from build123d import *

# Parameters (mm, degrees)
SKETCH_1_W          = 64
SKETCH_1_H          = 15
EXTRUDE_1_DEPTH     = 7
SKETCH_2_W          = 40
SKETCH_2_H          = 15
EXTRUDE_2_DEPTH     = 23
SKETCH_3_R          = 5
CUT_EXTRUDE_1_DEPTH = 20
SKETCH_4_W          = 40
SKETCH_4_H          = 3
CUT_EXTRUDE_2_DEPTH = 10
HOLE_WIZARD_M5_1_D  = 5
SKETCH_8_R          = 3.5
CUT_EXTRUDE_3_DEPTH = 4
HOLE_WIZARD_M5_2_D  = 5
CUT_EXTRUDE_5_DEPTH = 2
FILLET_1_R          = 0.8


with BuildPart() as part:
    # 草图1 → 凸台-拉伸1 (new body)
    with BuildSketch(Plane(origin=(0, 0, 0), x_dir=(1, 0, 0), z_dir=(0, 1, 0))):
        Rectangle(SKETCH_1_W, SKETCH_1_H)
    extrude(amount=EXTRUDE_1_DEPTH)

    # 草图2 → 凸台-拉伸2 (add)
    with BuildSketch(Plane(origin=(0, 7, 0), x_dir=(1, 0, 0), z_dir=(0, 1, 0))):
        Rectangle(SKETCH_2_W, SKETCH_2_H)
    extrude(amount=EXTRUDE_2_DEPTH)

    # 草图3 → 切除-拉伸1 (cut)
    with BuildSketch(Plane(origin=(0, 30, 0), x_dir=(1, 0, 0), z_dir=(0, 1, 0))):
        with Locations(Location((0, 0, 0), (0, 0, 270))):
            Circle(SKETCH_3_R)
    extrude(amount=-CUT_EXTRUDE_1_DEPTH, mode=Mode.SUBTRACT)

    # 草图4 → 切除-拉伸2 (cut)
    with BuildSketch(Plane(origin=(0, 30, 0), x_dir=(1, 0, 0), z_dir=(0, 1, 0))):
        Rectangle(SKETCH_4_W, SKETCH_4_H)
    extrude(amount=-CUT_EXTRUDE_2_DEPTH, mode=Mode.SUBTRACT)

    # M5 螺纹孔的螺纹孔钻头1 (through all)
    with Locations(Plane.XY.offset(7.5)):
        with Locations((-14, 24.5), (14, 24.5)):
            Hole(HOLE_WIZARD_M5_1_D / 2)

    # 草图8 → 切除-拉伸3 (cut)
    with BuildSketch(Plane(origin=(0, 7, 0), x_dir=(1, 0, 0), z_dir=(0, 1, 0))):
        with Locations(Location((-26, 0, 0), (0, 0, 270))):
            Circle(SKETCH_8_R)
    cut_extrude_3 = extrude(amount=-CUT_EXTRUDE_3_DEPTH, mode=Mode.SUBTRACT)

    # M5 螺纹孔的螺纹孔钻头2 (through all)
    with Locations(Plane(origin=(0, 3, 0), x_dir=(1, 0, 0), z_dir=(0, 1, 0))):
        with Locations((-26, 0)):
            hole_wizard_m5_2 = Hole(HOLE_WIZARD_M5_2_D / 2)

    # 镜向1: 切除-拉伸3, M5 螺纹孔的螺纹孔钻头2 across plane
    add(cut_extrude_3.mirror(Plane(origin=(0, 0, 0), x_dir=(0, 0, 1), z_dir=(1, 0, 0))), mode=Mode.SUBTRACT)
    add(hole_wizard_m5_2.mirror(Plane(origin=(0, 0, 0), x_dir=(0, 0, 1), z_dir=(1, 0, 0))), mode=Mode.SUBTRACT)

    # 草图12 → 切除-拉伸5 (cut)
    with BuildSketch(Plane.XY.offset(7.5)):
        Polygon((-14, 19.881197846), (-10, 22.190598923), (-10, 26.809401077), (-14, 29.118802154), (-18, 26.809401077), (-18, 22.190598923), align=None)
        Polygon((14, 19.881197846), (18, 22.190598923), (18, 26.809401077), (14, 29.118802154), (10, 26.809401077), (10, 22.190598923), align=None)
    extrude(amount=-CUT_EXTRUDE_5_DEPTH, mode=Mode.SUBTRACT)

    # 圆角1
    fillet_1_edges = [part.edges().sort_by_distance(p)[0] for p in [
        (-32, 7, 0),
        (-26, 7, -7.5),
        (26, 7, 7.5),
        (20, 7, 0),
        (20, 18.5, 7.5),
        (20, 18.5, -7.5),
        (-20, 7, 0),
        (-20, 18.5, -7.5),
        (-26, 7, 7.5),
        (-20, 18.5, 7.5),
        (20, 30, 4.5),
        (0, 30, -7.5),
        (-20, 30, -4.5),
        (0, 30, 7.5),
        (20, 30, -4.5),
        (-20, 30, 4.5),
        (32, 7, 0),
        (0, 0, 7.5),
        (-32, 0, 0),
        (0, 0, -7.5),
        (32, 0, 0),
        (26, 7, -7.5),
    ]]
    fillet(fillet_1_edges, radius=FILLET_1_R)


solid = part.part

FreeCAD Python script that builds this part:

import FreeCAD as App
import Part
import Sketcher
from FreeCAD import Vector
Q = App.Units.Quantity


def edges_at(feature, points):
    """Names of the edges that pass closest to the given points."""
    edges = feature.Shape.Edges
    near = lambda p: min(range(len(edges)), key=lambda i: edges[i].distToShape(Part.Vertex(*p))[0])
    return sorted({f"Edge{near(p) + 1}" for p in points})


def add_polygon(sketch, points):
    """Adds a closed chain of lines whose ends are joined by coincident constraints."""
    first, n = sketch.GeometryCount, len(points)
    for a, b in zip(points, points[1:] + points[:1]):
        sketch.addGeometry(Part.LineSegment(App.Vector(*a, 0), App.Vector(*b, 0)), False)
    for i in range(n):
        sketch.addConstraint(Sketcher.Constraint("Coincident", first + i, 2, first + (i + 1) % n, 1))

doc = App.newDocument("Part")
body = doc.addObject("PartDesign::Body", "Body")

# Sketch on XZ plane
sketch1 = body.newObject("Sketcher::SketchObject", "Sketch")
sketch1.AttachmentSupport = (doc.getObject("XZ_Plane"), [""])
sketch1.MapMode = "FlatFace"
add_polygon(sketch1, [(-32, -8), (-32, 8), (32, 8), (32, -8)])  # lines 0-3
sketch1.addConstraint([
    Sketcher.Constraint("Vertical", 0),
    Sketcher.Constraint("Horizontal", 1),
    Sketcher.Constraint("Vertical", 2),
    Sketcher.Constraint("Horizontal", 3),
    Sketcher.Constraint("Symmetric", 0, 2, 2, 2, -1, 1),
    Sketcher.Constraint("DistanceX", 1, 1, 1, 2, Q("64 mm")),
    Sketcher.Constraint("DistanceY", 0, 1, 0, 2, Q("15 mm")),
])
pad1 = body.newObject("PartDesign::Pad", "Pad")
pad1.Profile = sketch1
pad1.Length = 7
pad1.Reversed = True

# Sketch on XZ plane
sketch2 = body.newObject("Sketcher::SketchObject", "Sketch001")
sketch2.AttachmentSupport = (doc.getObject("XZ_Plane"), [""])
sketch2.MapMode = "FlatFace"
sketch2.AttachmentOffset = App.Placement(Vector(0, 0, -7), App.Rotation())
add_polygon(sketch2, [(-20, -8), (-20, 8), (20, 8), (20, -8)])  # lines 0-3
sketch2.addConstraint([
    Sketcher.Constraint("Vertical", 0),
    Sketcher.Constraint("Horizontal", 1),
    Sketcher.Constraint("Vertical", 2),
    Sketcher.Constraint("Horizontal", 3),
    Sketcher.Constraint("Symmetric", 0, 2, 2, 2, -1, 1),
    Sketcher.Constraint("DistanceX", 1, 1, 1, 2, Q("40 mm")),
    Sketcher.Constraint("DistanceY", 0, 1, 0, 2, Q("15 mm")),
])
pad2 = body.newObject("PartDesign::Pad", "Pad001")
pad2.Profile = sketch2
pad2.Length = 23
pad2.Reversed = True

# Sketch on XZ plane
sketch3 = body.newObject("Sketcher::SketchObject", "Sketch002")
sketch3.AttachmentSupport = (doc.getObject("XZ_Plane"), [""])
sketch3.MapMode = "FlatFace"
sketch3.AttachmentOffset = App.Placement(Vector(0, 0, -30), App.Rotation())
sketch3.addGeometry(Part.Circle(Vector(0, 0, 0), Vector(0, 0, 1), 5), False)
sketch3.addConstraint([
    Sketcher.Constraint("Coincident", 0, 3, -1, 1),
    Sketcher.Constraint("Diameter", 0, Q("10 mm")),
])
pocket1 = body.newObject("PartDesign::Pocket", "Pocket")
pocket1.Profile = sketch3
pocket1.Length = 20
pocket1.Reversed = True

# Sketch on XZ plane
sketch4 = body.newObject("Sketcher::SketchObject", "Sketch003")
sketch4.AttachmentSupport = (doc.getObject("XZ_Plane"), [""])
sketch4.MapMode = "FlatFace"
sketch4.AttachmentOffset = App.Placement(Vector(0, 0, -30), App.Rotation())
add_polygon(sketch4, [(-20, -1.5), (-20, 1.5), (20, 1.5), (20, -1.5)])  # lines 0-3
sketch4.addConstraint([
    Sketcher.Constraint("Vertical", 0),
    Sketcher.Constraint("Horizontal", 1),
    Sketcher.Constraint("Vertical", 2),
    Sketcher.Constraint("Horizontal", 3),
    Sketcher.Constraint("Symmetric", 0, 2, 2, 2, -1, 1),
    Sketcher.Constraint("DistanceX", 1, 1, 1, 2, Q("40 mm")),
    Sketcher.Constraint("DistanceY", 0, 1, 0, 2, Q("3 mm")),
])
pocket2 = body.newObject("PartDesign::Pocket", "Pocket001")
pocket2.Profile = sketch4
pocket2.Length = 10
pocket2.Reversed = True

# Sketch on XY plane
sketch5 = body.newObject("Sketcher::SketchObject", "Sketch004")
sketch5.AttachmentSupport = (doc.getObject("XY_Plane"), [""])
sketch5.MapMode = "FlatFace"
sketch5.AttachmentOffset = App.Placement(Vector(0, 0, 7.5), App.Rotation())
sketch5.addGeometry([
    Part.Circle(Vector(-14, 24.5, 0), Vector(0, 0, 1), 2.5),
    Part.Circle(Vector(14, 24.5, 0), Vector(0, 0, 1), 2.5),
], False)
sketch5.addConstraint([
    Sketcher.Constraint("Equal", 0, 1),
    Sketcher.Constraint("Symmetric", 0, 3, 1, 3, -2),
    Sketcher.Constraint("Diameter", 0, Q("5 mm")),
    Sketcher.Constraint("DistanceX", 0, 3, -1, 1, Q("14 mm")),
    Sketcher.Constraint("DistanceY", -1, 1, 0, 3, Q("24.5 mm")),
])
doc.recompute()
hole = body.newObject("PartDesign::Hole", "Hole")
hole.Profile = sketch5
hole.ThreadType = "None"
hole.Diameter = 5
hole.DepthType = "ThroughAll"

# Sketch on XZ plane
sketch6 = body.newObject("Sketcher::SketchObject", "Sketch005")
sketch6.AttachmentSupport = (doc.getObject("XZ_Plane"), [""])
sketch6.MapMode = "FlatFace"
sketch6.AttachmentOffset = App.Placement(Vector(0, 0, -7), App.Rotation())
sketch6.addGeometry(Part.Circle(Vector(-26, 0, 0), Vector(0, 0, 1), 3.5), False)
sketch6.addConstraint([
    Sketcher.Constraint("PointOnObject", 0, 3, -1),
    Sketcher.Constraint("Diameter", 0, Q("7 mm")),
    Sketcher.Constraint("DistanceX", 0, 3, -1, 1, Q("26 mm")),
])
pocket3 = body.newObject("PartDesign::Pocket", "Pocket002")
pocket3.Profile = sketch6
pocket3.Length = 4
pocket3.Reversed = True

# Sketch on XZ plane
sketch7 = body.newObject("Sketcher::SketchObject", "Sketch006")
sketch7.AttachmentSupport = (doc.getObject("XZ_Plane"), [""])
sketch7.MapMode = "FlatFace"
sketch7.AttachmentOffset = App.Placement(Vector(0, 0, -3), App.Rotation())
sketch7.addGeometry(Part.Circle(Vector(-26, 0, 0), Vector(0, 0, 1), 2.5), False)
sketch7.addConstraint([
    Sketcher.Constraint("PointOnObject", 0, 3, -1),
    Sketcher.Constraint("Diameter", 0, Q("5 mm")),
    Sketcher.Constraint("DistanceX", 0, 3, -1, 1, Q("26 mm")),
])
doc.recompute()
hole2 = body.newObject("PartDesign::Hole", "Hole001")
hole2.Profile = sketch7
hole2.ThreadType = "None"
hole2.Diameter = 5
hole2.DepthType = "ThroughAll"
hole2.Reversed = True
doc.recompute()

mirrored = body.newObject("PartDesign::Mirrored", "Mirrored")
mirrored.Originals = [pocket3, hole2]
mirrored.MirrorPlane = (doc.getObject("YZ_Plane"), [""])
body.Tip = mirrored

# Sketch on XY plane
sketch8 = body.newObject("Sketcher::SketchObject", "Sketch007")
sketch8.AttachmentSupport = (doc.getObject("XY_Plane"), [""])
sketch8.MapMode = "FlatFace"
sketch8.AttachmentOffset = App.Placement(Vector(0, 0, 7.5), App.Rotation())
add_polygon(sketch8, [(-14, 19.9), (-10, 22.2), (-10, 26.8), (-14, 29.1), (-18, 26.8), (-18, 22.2)])  # lines 0-5
add_polygon(sketch8, [(14, 19.9), (18, 22.2), (18, 26.8), (14, 29.1), (10, 26.8), (10, 22.2)])  # lines 6-11
sketch8.addConstraint([
    Sketcher.Constraint("Vertical", 1),
    Sketcher.Constraint("Vertical", 4),
    Sketcher.Constraint("Vertical", 7),
    Sketcher.Constraint("Vertical", 10),
    Sketcher.Constraint("Symmetric", 4, 2, 6, 2, -2),
    Sketcher.Constraint("Symmetric", 2, 2, 8, 2, -2),
    Sketcher.Constraint("Symmetric", 1, 2, 9, 2, -2),
    Sketcher.Constraint("Symmetric", 5, 2, 11, 2, -2),
    Sketcher.Constraint("Parallel", 0, 3),
    Sketcher.Constraint("Parallel", 2, 5),
    Sketcher.Constraint("Parallel", 3, 6),
    Sketcher.Constraint("Parallel", 5, 8),
    Sketcher.Constraint("Parallel", 8, 11),
    Sketcher.Constraint("Horizontal", 1, 2, 3, 2),
    Sketcher.Constraint("Horizontal", 0, 2, 4, 2),
    Sketcher.Constraint("Angle", 0, Q("30 deg")),
    Sketcher.Constraint("DistanceX", 0, 2, -1, 1, Q("10 mm")),
    Sketcher.Constraint("DistanceX", 2, 2, -1, 1, Q("14 mm")),
    Sketcher.Constraint("DistanceY", -1, 1, 0, 2, Q("22.190599 mm")),
    Sketcher.Constraint("DistanceY", -1, 1, 1, 2, Q("26.809401 mm")),
])
pocket4 = body.newObject("PartDesign::Pocket", "Pocket003")
pocket4.Profile = sketch8
pocket4.Length = 2
doc.recompute()

fillet = body.newObject("PartDesign::Fillet", "Fillet")
fillet.Base = (pocket4, edges_at(pocket4, [
    (-32, 7, 0),
    (-26, 7, -7.5),
    (26, 7, 7.5),
    (20, 7, 0),
    (20, 18.5, 7.5),
    (20, 18.5, -7.5),
    (-20, 7, 0),
    (-20, 18.5, -7.5),
    (-26, 7, 7.5),
    (-20, 18.5, 7.5),
    (20, 30, 4.5),
    (0, 30, -7.5),
    (-20, 30, -4.5),
    (0, 30, 7.5),
    (20, 30, -4.5),
    (-20, 30, 4.5),
    (32, 7, 0),
    (0, 0, 7.5),
    (-32, 0, 0),
    (0, 0, -7.5),
    (32, 0, 0),
    (26, 7, -7.5),
]))
fillet.Radius = 0.8

doc.recompute()
